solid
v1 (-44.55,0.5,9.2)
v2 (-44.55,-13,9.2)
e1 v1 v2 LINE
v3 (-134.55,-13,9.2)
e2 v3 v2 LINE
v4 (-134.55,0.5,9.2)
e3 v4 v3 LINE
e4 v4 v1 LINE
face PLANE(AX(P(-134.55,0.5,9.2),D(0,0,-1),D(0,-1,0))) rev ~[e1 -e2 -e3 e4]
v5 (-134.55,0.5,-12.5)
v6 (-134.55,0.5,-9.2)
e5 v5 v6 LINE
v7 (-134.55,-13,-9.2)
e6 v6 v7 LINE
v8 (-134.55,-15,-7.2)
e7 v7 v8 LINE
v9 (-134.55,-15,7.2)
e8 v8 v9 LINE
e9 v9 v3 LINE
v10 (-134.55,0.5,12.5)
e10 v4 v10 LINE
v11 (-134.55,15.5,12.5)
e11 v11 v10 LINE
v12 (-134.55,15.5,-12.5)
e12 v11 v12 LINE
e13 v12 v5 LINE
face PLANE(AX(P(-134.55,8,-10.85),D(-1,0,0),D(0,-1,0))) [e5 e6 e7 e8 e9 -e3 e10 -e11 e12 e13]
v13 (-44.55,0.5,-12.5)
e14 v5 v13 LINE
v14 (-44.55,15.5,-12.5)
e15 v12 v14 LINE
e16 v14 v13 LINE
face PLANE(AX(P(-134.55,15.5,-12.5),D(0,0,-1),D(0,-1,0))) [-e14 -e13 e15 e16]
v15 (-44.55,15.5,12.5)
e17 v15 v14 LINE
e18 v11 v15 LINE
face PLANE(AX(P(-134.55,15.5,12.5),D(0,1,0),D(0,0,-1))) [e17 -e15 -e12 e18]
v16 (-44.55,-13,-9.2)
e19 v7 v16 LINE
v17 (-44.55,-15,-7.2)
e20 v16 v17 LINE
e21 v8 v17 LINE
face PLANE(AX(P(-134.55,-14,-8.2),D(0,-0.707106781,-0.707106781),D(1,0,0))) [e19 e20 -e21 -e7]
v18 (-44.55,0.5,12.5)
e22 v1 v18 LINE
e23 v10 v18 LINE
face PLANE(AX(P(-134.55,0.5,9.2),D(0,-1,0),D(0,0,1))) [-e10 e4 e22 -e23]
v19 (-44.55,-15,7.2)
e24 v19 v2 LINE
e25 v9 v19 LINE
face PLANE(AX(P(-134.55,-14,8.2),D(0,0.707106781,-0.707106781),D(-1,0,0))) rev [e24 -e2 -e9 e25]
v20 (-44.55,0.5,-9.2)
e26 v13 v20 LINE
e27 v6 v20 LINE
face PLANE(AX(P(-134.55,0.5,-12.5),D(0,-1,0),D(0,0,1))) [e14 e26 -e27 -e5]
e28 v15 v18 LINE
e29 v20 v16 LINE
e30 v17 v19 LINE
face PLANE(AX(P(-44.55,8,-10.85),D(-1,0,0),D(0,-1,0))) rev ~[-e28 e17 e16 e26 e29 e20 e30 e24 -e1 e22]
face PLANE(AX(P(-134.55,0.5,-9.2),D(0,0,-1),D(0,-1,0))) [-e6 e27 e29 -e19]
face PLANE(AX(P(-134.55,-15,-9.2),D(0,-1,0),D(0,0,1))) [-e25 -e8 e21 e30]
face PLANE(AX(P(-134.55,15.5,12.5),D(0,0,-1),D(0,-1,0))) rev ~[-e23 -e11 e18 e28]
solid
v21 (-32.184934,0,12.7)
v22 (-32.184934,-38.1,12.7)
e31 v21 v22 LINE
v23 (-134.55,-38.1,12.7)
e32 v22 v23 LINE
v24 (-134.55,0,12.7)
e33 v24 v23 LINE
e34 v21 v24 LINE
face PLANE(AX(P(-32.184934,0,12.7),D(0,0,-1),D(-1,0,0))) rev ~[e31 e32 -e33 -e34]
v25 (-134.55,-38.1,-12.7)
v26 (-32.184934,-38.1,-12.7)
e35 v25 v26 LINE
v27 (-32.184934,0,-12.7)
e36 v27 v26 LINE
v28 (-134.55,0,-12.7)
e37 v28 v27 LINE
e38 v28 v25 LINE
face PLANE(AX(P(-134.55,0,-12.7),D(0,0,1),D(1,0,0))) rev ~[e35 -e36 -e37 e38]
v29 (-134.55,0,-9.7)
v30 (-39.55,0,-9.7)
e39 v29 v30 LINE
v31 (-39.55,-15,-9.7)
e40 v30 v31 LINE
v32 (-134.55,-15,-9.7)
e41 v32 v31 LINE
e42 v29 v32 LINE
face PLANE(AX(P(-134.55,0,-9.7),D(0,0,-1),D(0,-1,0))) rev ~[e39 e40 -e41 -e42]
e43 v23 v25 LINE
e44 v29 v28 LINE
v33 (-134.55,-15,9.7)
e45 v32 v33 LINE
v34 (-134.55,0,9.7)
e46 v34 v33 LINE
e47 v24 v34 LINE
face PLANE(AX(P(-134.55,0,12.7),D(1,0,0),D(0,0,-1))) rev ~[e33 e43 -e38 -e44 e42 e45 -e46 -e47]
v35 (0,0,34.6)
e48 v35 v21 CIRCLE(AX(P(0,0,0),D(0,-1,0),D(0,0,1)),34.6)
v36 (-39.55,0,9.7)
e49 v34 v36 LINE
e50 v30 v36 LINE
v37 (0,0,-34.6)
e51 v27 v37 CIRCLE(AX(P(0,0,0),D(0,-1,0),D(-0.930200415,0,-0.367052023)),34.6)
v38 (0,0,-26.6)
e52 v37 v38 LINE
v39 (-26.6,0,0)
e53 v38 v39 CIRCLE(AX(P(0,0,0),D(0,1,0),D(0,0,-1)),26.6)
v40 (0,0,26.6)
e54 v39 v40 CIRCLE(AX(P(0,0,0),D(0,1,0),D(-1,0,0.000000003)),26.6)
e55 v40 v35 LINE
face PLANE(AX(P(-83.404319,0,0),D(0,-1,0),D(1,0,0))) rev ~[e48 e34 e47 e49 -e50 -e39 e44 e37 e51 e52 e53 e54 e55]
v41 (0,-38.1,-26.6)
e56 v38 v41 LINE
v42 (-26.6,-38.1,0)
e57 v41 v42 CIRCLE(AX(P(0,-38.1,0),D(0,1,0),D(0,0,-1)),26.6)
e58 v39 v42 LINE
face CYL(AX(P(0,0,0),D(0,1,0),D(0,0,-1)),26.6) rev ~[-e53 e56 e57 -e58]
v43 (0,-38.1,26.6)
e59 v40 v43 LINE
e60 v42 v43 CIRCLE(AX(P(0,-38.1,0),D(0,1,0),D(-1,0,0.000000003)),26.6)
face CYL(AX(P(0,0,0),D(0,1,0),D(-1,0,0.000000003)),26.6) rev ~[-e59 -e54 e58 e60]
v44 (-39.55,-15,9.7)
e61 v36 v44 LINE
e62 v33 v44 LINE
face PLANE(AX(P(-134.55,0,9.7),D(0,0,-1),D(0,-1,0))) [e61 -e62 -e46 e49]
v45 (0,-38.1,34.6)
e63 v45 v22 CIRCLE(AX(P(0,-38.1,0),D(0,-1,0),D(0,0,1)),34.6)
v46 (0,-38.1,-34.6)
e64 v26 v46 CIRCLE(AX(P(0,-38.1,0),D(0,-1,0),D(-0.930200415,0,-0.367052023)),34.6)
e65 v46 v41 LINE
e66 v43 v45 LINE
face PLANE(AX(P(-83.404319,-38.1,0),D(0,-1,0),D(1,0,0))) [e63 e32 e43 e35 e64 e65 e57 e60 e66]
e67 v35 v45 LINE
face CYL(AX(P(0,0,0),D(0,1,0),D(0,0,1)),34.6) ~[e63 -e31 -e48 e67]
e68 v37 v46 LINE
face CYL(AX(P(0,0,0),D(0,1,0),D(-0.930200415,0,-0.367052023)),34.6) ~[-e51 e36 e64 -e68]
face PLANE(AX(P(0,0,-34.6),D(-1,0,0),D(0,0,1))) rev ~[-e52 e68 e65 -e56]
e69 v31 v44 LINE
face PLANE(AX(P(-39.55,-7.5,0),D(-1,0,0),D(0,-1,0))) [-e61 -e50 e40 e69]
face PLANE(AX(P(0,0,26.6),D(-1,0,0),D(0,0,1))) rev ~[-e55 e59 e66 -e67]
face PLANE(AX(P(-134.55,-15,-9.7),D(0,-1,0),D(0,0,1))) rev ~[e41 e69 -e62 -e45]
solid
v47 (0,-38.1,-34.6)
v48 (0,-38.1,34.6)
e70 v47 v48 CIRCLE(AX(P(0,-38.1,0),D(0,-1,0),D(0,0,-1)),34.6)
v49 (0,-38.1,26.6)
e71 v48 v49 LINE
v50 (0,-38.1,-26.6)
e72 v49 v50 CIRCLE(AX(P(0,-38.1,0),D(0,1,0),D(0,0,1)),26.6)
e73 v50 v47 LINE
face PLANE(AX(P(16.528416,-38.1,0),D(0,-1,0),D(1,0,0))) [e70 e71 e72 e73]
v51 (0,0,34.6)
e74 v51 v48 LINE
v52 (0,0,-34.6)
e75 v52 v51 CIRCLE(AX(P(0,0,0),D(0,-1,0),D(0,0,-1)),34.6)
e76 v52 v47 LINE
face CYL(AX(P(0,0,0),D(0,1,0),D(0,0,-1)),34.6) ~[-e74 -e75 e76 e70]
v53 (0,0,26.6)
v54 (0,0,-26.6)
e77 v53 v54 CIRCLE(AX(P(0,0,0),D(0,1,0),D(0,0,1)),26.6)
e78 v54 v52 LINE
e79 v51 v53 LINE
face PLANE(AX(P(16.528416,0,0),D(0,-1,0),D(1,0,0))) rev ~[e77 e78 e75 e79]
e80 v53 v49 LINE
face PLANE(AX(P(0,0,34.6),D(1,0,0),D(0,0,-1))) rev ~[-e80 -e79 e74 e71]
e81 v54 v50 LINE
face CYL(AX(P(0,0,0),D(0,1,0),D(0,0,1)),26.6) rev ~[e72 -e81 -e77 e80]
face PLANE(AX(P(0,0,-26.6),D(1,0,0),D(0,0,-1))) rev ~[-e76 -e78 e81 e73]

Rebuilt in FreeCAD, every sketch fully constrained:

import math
import FreeCAD as App
import Part
import Sketcher


def edges_at(feature, points):
    """Names of the edges that pass closest to the given points."""
    edges = feature.Shape.Edges
    near = lambda p: min(range(len(edges)), key=lambda i: edges[i].distToShape(Part.Vertex(*p))[0])
    return sorted({f"Edge{near(p) + 1}" for p in points})

doc = App.newDocument("Part")
body = doc.addObject("PartDesign::Body", "Body")

# Sketch on XZ plane
sketch1 = body.newObject("Sketcher::SketchObject", "Sketch")
sketch1.AttachmentSupport = (doc.getObject("XZ_Plane"), [""])
sketch1.MapMode = "FlatFace"
sketch1.addGeometry([
    Part.LineSegment(App.Vector(-134.55, 12.7, 0), App.Vector(-134.55, -12.7, 0)),  # 0
    Part.LineSegment(App.Vector(-134.55, -12.7, 0), App.Vector(-32.184934, -12.7, 0)),  # 1
    Part.ArcOfCircle(Part.Circle(App.Vector(0, 0, 0), App.Vector(0, 0, 1), 34.6), math.radians(-158.466078), math.radians(-90)),  # 2
    Part.LineSegment(App.Vector(0, -34.6, 0), App.Vector(0, -26.6, 0)),  # 3
    Part.ArcOfCircle(Part.Circle(App.Vector(0, 0, 0), App.Vector(0, 0, 1), 26.6), math.radians(180), math.radians(270)),  # 4
    Part.ArcOfCircle(Part.Circle(App.Vector(0, 0, 0), App.Vector(0, 0, 1), 26.6), math.radians(90), math.radians(180)),  # 5
    Part.LineSegment(App.Vector(0, 26.6, 0), App.Vector(0, 34.6, 0)),  # 6
    Part.ArcOfCircle(Part.Circle(App.Vector(0, 0, 0), App.Vector(0, 0, 1), 34.6), math.radians(90), math.radians(158.466078)),  # 7
    Part.LineSegment(App.Vector(-32.184934, 12.7, 0), App.Vector(-134.55, 12.7, 0)),  # 8
], False)
sketch1.addConstraint([
    Sketcher.Constraint("Coincident", 0, 2, 1, 1),
    Sketcher.Constraint("Coincident", 1, 2, 2, 1),
    Sketcher.Constraint("Coincident", 2, 2, 3, 1),
    Sketcher.Constraint("Coincident", 3, 2, 4, 2),
    Sketcher.Constraint("Tangent", 4, 1, 5, 2),
    Sketcher.Constraint("Coincident", 5, 1, 6, 1),
    Sketcher.Constraint("Coincident", 6, 2, 7, 1),
    Sketcher.Constraint("Coincident", 7, 2, 8, 1),
    Sketcher.Constraint("Coincident", 8, 2, 0, 1),
    Sketcher.Constraint("Vertical", 0),
    Sketcher.Constraint("Horizontal", 1),
    Sketcher.Constraint("Vertical", 3),
    Sketcher.Constraint("Vertical", 6),
    Sketcher.Constraint("Horizontal", 8),
    Sketcher.Constraint("Coincident", 2, 3, -1, 1),
    Sketcher.Constraint("Coincident", 4, 3, -1, 1),
    Sketcher.Constraint("Coincident", 7, 3, -1, 1),
    Sketcher.Constraint("Equal", 4, 5),
    Sketcher.Constraint("Equal", 2, 7),
    Sketcher.Constraint("PointOnObject", 2, 2, -2),
    Sketcher.Constraint("PointOnObject", 4, 1, -1),
    Sketcher.Constraint("PointOnObject", 5, 1, -2),
    Sketcher.Constraint("Vertical", 1, 2, 7, 2),
    Sketcher.Constraint("Radius", 2, 34.6),
    Sketcher.Constraint("Radius", 4, 26.6),
    Sketcher.Constraint("DistanceY", 0, 2, 0, 1, 25.4),
    Sketcher.Constraint("DistanceX", 0, 2, -1, 1, 134.55),
])
pad1 = body.newObject("PartDesign::Pad", "Pad")
pad1.Profile = sketch1
pad1.Length = 38.1

# Sketch on YZ plane
sketch2 = body.newObject("Sketcher::SketchObject", "Sketch001")
sketch2.AttachmentSupport = (doc.getObject("YZ_Plane"), [""])
sketch2.MapMode = "FlatFace"
sketch2.AttachmentOffset = App.Placement(App.Vector(0, 0, -134.55), App.Rotation())
sketch2.addGeometry([
    Part.LineSegment(App.Vector(0, 9.7, 0), App.Vector(0, -9.7, 0)),
    Part.LineSegment(App.Vector(0, -9.7, 0), App.Vector(-15, -9.7, 0)),
    Part.LineSegment(App.Vector(-15, -9.7, 0), App.Vector(-15, 9.7, 0)),
    Part.LineSegment(App.Vector(-15, 9.7, 0), App.Vector(0, 9.7, 0)),
], False)
sketch2.addConstraint([
    Sketcher.Constraint("Coincident", 0, 2, 1, 1),
    Sketcher.Constraint("Coincident", 1, 2, 2, 1),
    Sketcher.Constraint("Coincident", 2, 2, 3, 1),
    Sketcher.Constraint("Coincident", 3, 2, 0, 1),
    Sketcher.Constraint("Vertical", 0),
    Sketcher.Constraint("Horizontal", 1),
    Sketcher.Constraint("Vertical", 2),
    Sketcher.Constraint("Horizontal", 3),
    Sketcher.Constraint("Symmetric", 0, 2, 3, 2, -1, 1),
    Sketcher.Constraint("DistanceX", 1, 2, 1, 1, 15.0),
    Sketcher.Constraint("DistanceY", 0, 2, 0, 1, 19.4),
])
pocket1 = body.newObject("PartDesign::Pocket", "Pocket")
pocket1.Profile = sketch2
pocket1.Length = 95
pocket1.Reversed = True
body2 = doc.addObject("PartDesign::Body", "Body001")

# Sketch on XZ plane
sketch3 = body2.newObject("Sketcher::SketchObject", "Sketch002")
sketch3.AttachmentSupport = (doc.getObject("XZ_Plane001"), [""])
sketch3.MapMode = "FlatFace"
sketch3.addGeometry([
    Part.LineSegment(App.Vector(0, -26.6, 0), App.Vector(0, -34.6, 0)),
    Part.ArcOfCircle(Part.Circle(App.Vector(0, 0, 0), App.Vector(0, 0, 1), 34.6), math.radians(-90), math.radians(90)),
    Part.LineSegment(App.Vector(0, 34.6, 0), App.Vector(0, 26.6, 0)),
    Part.ArcOfCircle(Part.Circle(App.Vector(0, 0, 0), App.Vector(0, 0, 1), 26.6), math.radians(-90), math.radians(90)),
], False)
sketch3.addConstraint([
    Sketcher.Constraint("Coincident", 0, 2, 1, 1),
    Sketcher.Constraint("Coincident", 1, 2, 2, 1),
    Sketcher.Constraint("Coincident", 2, 2, 3, 2),
    Sketcher.Constraint("Coincident", 3, 1, 0, 1),
    Sketcher.Constraint("Vertical", 0),
    Sketcher.Constraint("Vertical", 2),
    Sketcher.Constraint("Coincident", 1, 3, -1, 1),
    Sketcher.Constraint("Coincident", 3, 3, -1, 1),
    Sketcher.Constraint("PointOnObject", 0, 2, -2),
    Sketcher.Constraint("PointOnObject", 1, 2, -2),
    Sketcher.Constraint("Radius", 1, 34.6),
    Sketcher.Constraint("Radius", 3, 26.6),
])
pad2 = body2.newObject("PartDesign::Pad", "Pad001")
pad2.Profile = sketch3
pad2.Length = 38.1
body3 = doc.addObject("PartDesign::Body", "Body002")

# Sketch on YZ plane
sketch4 = body3.newObject("Sketcher::SketchObject", "Sketch003")
sketch4.AttachmentSupport = (doc.getObject("YZ_Plane002"), [""])
sketch4.MapMode = "FlatFace"
sketch4.AttachmentOffset = App.Placement(App.Vector(0, 0, -134.55), App.Rotation())
sketch4.addGeometry([
    Part.LineSegment(App.Vector(15.5, -12.5, 0), App.Vector(0.5, -12.5, 0)),  # 0
    Part.LineSegment(App.Vector(0.5, -12.5, 0), App.Vector(0.5, -9.2, 0)),  # 1
    Part.LineSegment(App.Vector(0.5, -9.2, 0), App.Vector(-15, -9.2, 0)),  # 2
    Part.LineSegment(App.Vector(-15, -9.2, 0), App.Vector(-15, 9.2, 0)),  # 3
    Part.LineSegment(App.Vector(-15, 9.2, 0), App.Vector(0.5, 9.2, 0)),  # 4
    Part.LineSegment(App.Vector(0.5, 9.2, 0), App.Vector(0.5, 12.5, 0)),  # 5
    Part.LineSegment(App.Vector(0.5, 12.5, 0), App.Vector(15.5, 12.5, 0)),  # 6
    Part.LineSegment(App.Vector(15.5, 12.5, 0), App.Vector(15.5, -12.5, 0)),  # 7
], False)
sketch4.addConstraint([
    Sketcher.Constraint("Coincident", 0, 2, 1, 1),
    Sketcher.Constraint("Coincident", 1, 2, 2, 1),
    Sketcher.Constraint("Coincident", 2, 2, 3, 1),
    Sketcher.Constraint("Coincident", 3, 2, 4, 1),
    Sketcher.Constraint("Coincident", 4, 2, 5, 1),
    Sketcher.Constraint("Coincident", 5, 2, 6, 1),
    Sketcher.Constraint("Coincident", 6, 2, 7, 1),
    Sketcher.Constraint("Coincident", 7, 2, 0, 1),
    Sketcher.Constraint("Horizontal", 0),
    Sketcher.Constraint("Vertical", 1),
    Sketcher.Constraint("Horizontal", 2),
    Sketcher.Constraint("Vertical", 3),
    Sketcher.Constraint("Horizontal", 4),
    Sketcher.Constraint("Vertical", 5),
    Sketcher.Constraint("Horizontal", 6),
    Sketcher.Constraint("Vertical", 7),
    Sketcher.Constraint("Symmetric", 1, 2, 4, 2, -1),
    Sketcher.Constraint("Equal", 1, 5),
    Sketcher.Constraint("DistanceX", 0, 2, 0, 1, 15.0),
    Sketcher.Constraint("DistanceY", 7, 2, 7, 1, 25.0),
    Sketcher.Constraint("DistanceX", 2, 2, 2, 1, 15.5),
    Sketcher.Constraint("DistanceY", 1, 1, 1, 2, 3.3),
    Sketcher.Constraint("DistanceX", 2, 2, -1, 1, 15.0),
])
pad3 = body3.newObject("PartDesign::Pad", "Pad002")
pad3.Profile = sketch4
pad3.Length = 90
doc.recompute()

chamfer = body3.newObject("PartDesign::Chamfer", "Chamfer")
chamfer.Base = (pad3, edges_at(pad3, [(-89.55, -15, -9.2), (-89.55, -15, 9.2)]))
chamfer.Size = 2

doc.recompute()
